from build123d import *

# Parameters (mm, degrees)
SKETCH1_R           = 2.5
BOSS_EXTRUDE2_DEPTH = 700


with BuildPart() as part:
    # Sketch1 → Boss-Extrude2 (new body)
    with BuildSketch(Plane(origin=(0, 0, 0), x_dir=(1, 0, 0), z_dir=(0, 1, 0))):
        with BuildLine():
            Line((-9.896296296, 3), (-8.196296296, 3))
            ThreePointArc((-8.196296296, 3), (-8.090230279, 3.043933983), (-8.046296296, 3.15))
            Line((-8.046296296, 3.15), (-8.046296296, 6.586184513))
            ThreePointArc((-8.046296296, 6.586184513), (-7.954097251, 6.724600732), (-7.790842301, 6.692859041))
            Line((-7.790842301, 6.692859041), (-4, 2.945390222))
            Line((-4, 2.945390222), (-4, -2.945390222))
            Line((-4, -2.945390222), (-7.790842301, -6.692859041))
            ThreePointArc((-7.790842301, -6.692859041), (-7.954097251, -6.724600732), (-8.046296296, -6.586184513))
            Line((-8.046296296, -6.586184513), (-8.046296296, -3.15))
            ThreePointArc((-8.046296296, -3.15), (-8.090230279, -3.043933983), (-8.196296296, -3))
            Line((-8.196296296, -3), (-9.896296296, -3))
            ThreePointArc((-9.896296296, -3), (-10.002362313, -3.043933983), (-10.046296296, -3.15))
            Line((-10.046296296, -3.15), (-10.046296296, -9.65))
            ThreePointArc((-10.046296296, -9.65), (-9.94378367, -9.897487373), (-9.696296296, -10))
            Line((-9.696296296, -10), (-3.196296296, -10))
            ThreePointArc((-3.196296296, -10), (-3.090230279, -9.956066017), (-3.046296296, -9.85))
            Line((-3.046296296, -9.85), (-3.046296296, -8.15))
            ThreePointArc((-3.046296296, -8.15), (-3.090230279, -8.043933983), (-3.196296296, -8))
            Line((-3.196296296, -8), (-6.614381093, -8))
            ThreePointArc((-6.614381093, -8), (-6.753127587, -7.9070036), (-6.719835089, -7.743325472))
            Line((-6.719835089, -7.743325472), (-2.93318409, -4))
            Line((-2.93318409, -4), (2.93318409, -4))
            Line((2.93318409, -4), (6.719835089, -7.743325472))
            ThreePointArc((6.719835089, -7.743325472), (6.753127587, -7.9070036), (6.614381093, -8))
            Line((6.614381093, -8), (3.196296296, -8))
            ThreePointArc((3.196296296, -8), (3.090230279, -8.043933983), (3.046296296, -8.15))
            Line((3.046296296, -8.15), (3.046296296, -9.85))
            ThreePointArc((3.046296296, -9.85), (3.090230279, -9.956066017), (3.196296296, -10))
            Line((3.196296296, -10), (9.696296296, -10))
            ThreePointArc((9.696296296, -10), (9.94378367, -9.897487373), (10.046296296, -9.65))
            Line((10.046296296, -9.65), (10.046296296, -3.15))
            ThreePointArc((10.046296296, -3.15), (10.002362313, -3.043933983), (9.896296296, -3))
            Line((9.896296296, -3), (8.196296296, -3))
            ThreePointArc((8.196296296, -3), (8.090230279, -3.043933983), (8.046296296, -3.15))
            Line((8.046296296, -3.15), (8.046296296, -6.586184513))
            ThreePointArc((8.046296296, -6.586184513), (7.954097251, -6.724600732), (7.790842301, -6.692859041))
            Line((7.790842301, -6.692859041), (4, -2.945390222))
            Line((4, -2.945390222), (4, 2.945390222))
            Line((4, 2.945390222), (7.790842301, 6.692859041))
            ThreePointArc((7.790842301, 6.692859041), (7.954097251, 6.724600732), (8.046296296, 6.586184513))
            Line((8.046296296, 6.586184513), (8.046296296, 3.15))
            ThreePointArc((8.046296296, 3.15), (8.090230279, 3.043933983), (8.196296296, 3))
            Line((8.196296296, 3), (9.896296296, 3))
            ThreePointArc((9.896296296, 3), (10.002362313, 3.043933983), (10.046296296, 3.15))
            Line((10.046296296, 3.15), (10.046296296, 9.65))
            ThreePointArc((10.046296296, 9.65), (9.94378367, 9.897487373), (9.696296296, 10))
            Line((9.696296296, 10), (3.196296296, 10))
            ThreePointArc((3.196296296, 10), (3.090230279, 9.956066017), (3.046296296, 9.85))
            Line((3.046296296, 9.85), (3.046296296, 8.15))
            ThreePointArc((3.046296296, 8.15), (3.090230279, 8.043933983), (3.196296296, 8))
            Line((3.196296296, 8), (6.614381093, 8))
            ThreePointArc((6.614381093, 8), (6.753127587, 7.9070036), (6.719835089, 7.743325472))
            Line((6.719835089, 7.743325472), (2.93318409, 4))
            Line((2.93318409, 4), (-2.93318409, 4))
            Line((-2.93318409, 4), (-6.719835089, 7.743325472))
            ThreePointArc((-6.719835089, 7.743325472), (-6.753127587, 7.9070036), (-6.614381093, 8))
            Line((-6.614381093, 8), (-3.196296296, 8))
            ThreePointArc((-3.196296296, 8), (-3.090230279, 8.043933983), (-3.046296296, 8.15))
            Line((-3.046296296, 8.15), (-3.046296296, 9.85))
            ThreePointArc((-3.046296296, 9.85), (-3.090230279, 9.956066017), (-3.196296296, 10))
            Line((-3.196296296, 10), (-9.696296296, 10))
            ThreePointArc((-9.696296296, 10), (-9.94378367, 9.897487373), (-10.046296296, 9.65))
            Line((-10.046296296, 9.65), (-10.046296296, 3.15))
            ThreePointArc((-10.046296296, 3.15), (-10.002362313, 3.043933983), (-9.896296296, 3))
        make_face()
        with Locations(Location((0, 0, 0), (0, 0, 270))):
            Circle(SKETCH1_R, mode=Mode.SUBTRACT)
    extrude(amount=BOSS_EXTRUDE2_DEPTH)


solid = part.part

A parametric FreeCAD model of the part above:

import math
import FreeCAD as App
import Part
import Sketcher

V = App.Vector
Q = App.Units.Quantity

doc = App.newDocument("Part")
body = doc.addObject("PartDesign::Body", "Body")

# Sketch on XZ plane
sketch1 = doc.addObject("Sketcher::SketchObject", "Sketch")
body.addObject(sketch1)
sketch1.AttachmentSupport = (doc.XZ_Plane, [""])
sketch1.MapMode = "FlatFace"
sketch1.addGeometry([
    Part.LineSegment(V(-9.896296, -3, 0), V(-8.196296, -3, 0)),  # 0
    Part.ArcOfCircle(Part.Circle(V(-8.196296, -3.15, 0), V(0, 0, 1), 0.15), math.radians(0), math.radians(90)),  # 1
    Part.LineSegment(V(-8.046296, -3.15, 0), V(-8.046296, -6.586185, 0)),  # 2
    Part.ArcOfCircle(Part.Circle(V(-7.896296, -6.586185, 0), V(0, 0, 1), 0.15), math.radians(180), math.radians(314.670338)),  # 3
    Part.LineSegment(V(-7.790842, -6.692859, 0), V(-4, -2.94539, 0)),  # 4
    Part.LineSegment(V(-4, -2.94539, 0), V(-4, 2.94539, 0)),  # 5
    Part.LineSegment(V(-4, 2.94539, 0), V(-7.790842, 6.692859, 0)),  # 6
    Part.ArcOfCircle(Part.Circle(V(-7.896296, 6.586185, 0), V(0, 0, 1), 0.15), math.radians(45.329662), math.radians(180)),  # 7
    Part.LineSegment(V(-8.046296, 6.586185, 0), V(-8.046296, 3.15, 0)),  # 8
    Part.ArcOfCircle(Part.Circle(V(-8.196296, 3.15, 0), V(0, 0, 1), 0.15), math.radians(-90), math.radians(0)),  # 9
    Part.LineSegment(V(-8.196296, 3, 0), V(-9.896296, 3, 0)),  # 10
    Part.ArcOfCircle(Part.Circle(V(-9.896296, 3.15, 0), V(0, 0, 1), 0.15), math.radians(-180), math.radians(-90)),  # 11
    Part.LineSegment(V(-10.046296, 3.15, 0), V(-10.046296, 9.65, 0)),  # 12
    Part.ArcOfCircle(Part.Circle(V(-9.696296, 9.65, 0), V(0, 0, 1), 0.35), math.radians(90), math.radians(180)),  # 13
    Part.LineSegment(V(-9.696296, 10, 0), V(-3.196296, 10, 0)),  # 14
    Part.ArcOfCircle(Part.Circle(V(-3.196296, 9.85, 0), V(0, 0, 1), 0.15), math.radians(0), math.radians(90)),  # 15
    Part.LineSegment(V(-3.046296, 9.85, 0), V(-3.046296, 8.15, 0)),  # 16
    Part.ArcOfCircle(Part.Circle(V(-3.196296, 8.15, 0), V(0, 0, 1), 0.15), math.radians(-90), math.radians(0)),  # 17
    Part.LineSegment(V(-3.196296, 8, 0), V(-6.614381, 8, 0)),  # 18
    Part.ArcOfCircle(Part.Circle(V(-6.614381, 7.85, 0), V(0, 0, 1), 0.15), math.radians(90), math.radians(225.329661)),  # 19
    Part.LineSegment(V(-6.719835, 7.743325, 0), V(-2.933184, 4, 0)),  # 20
    Part.LineSegment(V(-2.933184, 4, 0), V(2.933184, 4, 0)),  # 21
    Part.LineSegment(V(2.933184, 4, 0), V(6.719835, 7.743325, 0)),  # 22
    Part.ArcOfCircle(Part.Circle(V(6.614381, 7.85, 0), V(0, 0, 1), 0.15), math.radians(-45.329661), math.radians(90)),  # 23
    Part.LineSegment(V(6.614381, 8, 0), V(3.196296, 8, 0)),  # 24
    Part.ArcOfCircle(Part.Circle(V(3.196296, 8.15, 0), V(0, 0, 1), 0.15), math.radians(-180), math.radians(-90)),  # 25
    Part.LineSegment(V(3.046296, 8.15, 0), V(3.046296, 9.85, 0)),  # 26
    Part.ArcOfCircle(Part.Circle(V(3.196296, 9.85, 0), V(0, 0, 1), 0.15), math.radians(90), math.radians(180)),  # 27
    Part.LineSegment(V(3.196296, 10, 0), V(9.696296, 10, 0)),  # 28
    Part.ArcOfCircle(Part.Circle(V(9.696296, 9.65, 0), V(0, 0, 1), 0.35), math.radians(0), math.radians(90)),  # 29
    Part.LineSegment(V(10.046296, 9.65, 0), V(10.046296, 3.15, 0)),  # 30
    Part.ArcOfCircle(Part.Circle(V(9.896296, 3.15, 0), V(0, 0, 1), 0.15), math.radians(-90), math.radians(0)),  # 31
    Part.LineSegment(V(9.896296, 3, 0), V(8.196296, 3, 0)),  # 32
    Part.ArcOfCircle(Part.Circle(V(8.196296, 3.15, 0), V(0, 0, 1), 0.15), math.radians(-180), math.radians(-90)),  # 33
    Part.LineSegment(V(8.046296, 3.15, 0), V(8.046296, 6.586185, 0)),  # 34
    Part.ArcOfCircle(Part.Circle(V(7.896296, 6.586185, 0), V(0, 0, 1), 0.15), math.radians(0), math.radians(134.670338)),  # 35
    Part.LineSegment(V(7.790842, 6.692859, 0), V(4, 2.94539, 0)),  # 36
    Part.LineSegment(V(4, 2.94539, 0), V(4, -2.94539, 0)),  # 37
    Part.LineSegment(V(4, -2.94539, 0), V(7.790842, -6.692859, 0)),  # 38
    Part.ArcOfCircle(Part.Circle(V(7.896296, -6.586185, 0), V(0, 0, 1), 0.15), math.radians(-134.670338), math.radians(0)),  # 39
    Part.LineSegment(V(8.046296, -6.586185, 0), V(8.046296, -3.15, 0)),  # 40
    Part.ArcOfCircle(Part.Circle(V(8.196296, -3.15, 0), V(0, 0, 1), 0.15), math.radians(90), math.radians(180)),  # 41
    Part.LineSegment(V(8.196296, -3, 0), V(9.896296, -3, 0)),  # 42
    Part.ArcOfCircle(Part.Circle(V(9.896296, -3.15, 0), V(0, 0, 1), 0.15), math.radians(0), math.radians(90)),  # 43
    Part.LineSegment(V(10.046296, -3.15, 0), V(10.046296, -9.65, 0)),  # 44
    Part.ArcOfCircle(Part.Circle(V(9.696296, -9.65, 0), V(0, 0, 1), 0.35), math.radians(-90), math.radians(0)),  # 45
    Part.LineSegment(V(9.696296, -10, 0), V(3.196296, -10, 0)),  # 46
    Part.ArcOfCircle(Part.Circle(V(3.196296, -9.85, 0), V(0, 0, 1), 0.15), math.radians(-180), math.radians(-90)),  # 47
    Part.LineSegment(V(3.046296, -9.85, 0), V(3.046296, -8.15, 0)),  # 48
    Part.ArcOfCircle(Part.Circle(V(3.196296, -8.15, 0), V(0, 0, 1), 0.15), math.radians(90), math.radians(180)),  # 49
    Part.LineSegment(V(3.196296, -8, 0), V(6.614381, -8, 0)),  # 50
    Part.ArcOfCircle(Part.Circle(V(6.614381, -7.85, 0), V(0, 0, 1), 0.15), math.radians(-90), math.radians(45.329661)),  # 51
    Part.LineSegment(V(6.719835, -7.743325, 0), V(2.933184, -4, 0)),  # 52
    Part.LineSegment(V(2.933184, -4, 0), V(-2.933184, -4, 0)),  # 53
    Part.LineSegment(V(-2.933184, -4, 0), V(-6.719835, -7.743325, 0)),  # 54
    Part.ArcOfCircle(Part.Circle(V(-6.614381, -7.85, 0), V(0, 0, 1), 0.15), math.radians(134.670339), math.radians(270)),  # 55
    Part.LineSegment(V(-6.614381, -8, 0), V(-3.196296, -8, 0)),  # 56
    Part.ArcOfCircle(Part.Circle(V(-3.196296, -8.15, 0), V(0, 0, 1), 0.15), math.radians(0), math.radians(90)),  # 57
    Part.LineSegment(V(-3.046296, -8.15, 0), V(-3.046296, -9.85, 0)),  # 58
    Part.ArcOfCircle(Part.Circle(V(-3.196296, -9.85, 0), V(0, 0, 1), 0.15), math.radians(-90), math.radians(0)),  # 59
    Part.LineSegment(V(-3.196296, -10, 0), V(-9.696296, -10, 0)),  # 60
    Part.ArcOfCircle(Part.Circle(V(-9.696296, -9.65, 0), V(0, 0, 1), 0.35), math.radians(180), math.radians(270)),  # 61
    Part.LineSegment(V(-10.046296, -9.65, 0), V(-10.046296, -3.15, 0)),  # 62
    Part.ArcOfCircle(Part.Circle(V(-9.896296, -3.15, 0), V(0, 0, 1), 0.15), math.radians(90), math.radians(180)),  # 63
    Part.Circle(V(0, 0, 0), V(0, 0, 1), 2.5),  # 64
], False)
sketch1.addConstraint([
    Sketcher.Constraint("Tangent", 0, 2, 1, 2),
    Sketcher.Constraint("Tangent", 1, 1, 2, 1),
    Sketcher.Constraint("Tangent", 2, 2, 3, 1),
    Sketcher.Constraint("Tangent", 3, 2, 4, 1),
    Sketcher.Constraint("Coincident", 4, 2, 5, 1),
    Sketcher.Constraint("Coincident", 5, 2, 6, 1),
    Sketcher.Constraint("Tangent", 6, 2, 7, 1),
    Sketcher.Constraint("Tangent", 7, 2, 8, 1),
    Sketcher.Constraint("Tangent", 8, 2, 9, 2),
    Sketcher.Constraint("Tangent", 9, 1, 10, 1),
    Sketcher.Constraint("Tangent", 10, 2, 11, 2),
    Sketcher.Constraint("Tangent", 11, 1, 12, 1),
    Sketcher.Constraint("Tangent", 12, 2, 13, 2),
    Sketcher.Constraint("Tangent", 13, 1, 14, 1),
    Sketcher.Constraint("Tangent", 14, 2, 15, 2),
    Sketcher.Constraint("Tangent", 15, 1, 16, 1),
    Sketcher.Constraint("Tangent", 16, 2, 17, 2),
    Sketcher.Constraint("Tangent", 17, 1, 18, 1),
    Sketcher.Constraint("Tangent", 18, 2, 19, 1),
    Sketcher.Constraint("Tangent", 19, 2, 20, 1),
    Sketcher.Constraint("Coincident", 20, 2, 21, 1),
    Sketcher.Constraint("Coincident", 21, 2, 22, 1),
    Sketcher.Constraint("Tangent", 22, 2, 23, 1),
    Sketcher.Constraint("Tangent", 23, 2, 24, 1),
    Sketcher.Constraint("Tangent", 24, 2, 25, 2),
    Sketcher.Constraint("Tangent", 25, 1, 26, 1),
    Sketcher.Constraint("Tangent", 26, 2, 27, 2),
    Sketcher.Constraint("Tangent", 27, 1, 28, 1),
    Sketcher.Constraint("Tangent", 28, 2, 29, 2),
    Sketcher.Constraint("Tangent", 29, 1, 30, 1),
    Sketcher.Constraint("Tangent", 30, 2, 31, 2),
    Sketcher.Constraint("Tangent", 31, 1, 32, 1),
    Sketcher.Constraint("Tangent", 32, 2, 33, 2),
    Sketcher.Constraint("Tangent", 33, 1, 34, 1),
    Sketcher.Constraint("Tangent", 34, 2, 35, 1),
    Sketcher.Constraint("Tangent", 35, 2, 36, 1),
    Sketcher.Constraint("Coincident", 36, 2, 37, 1),
    Sketcher.Constraint("Coincident", 37, 2, 38, 1),
    Sketcher.Constraint("Tangent", 38, 2, 39, 1),
    Sketcher.Constraint("Tangent", 39, 2, 40, 1),
    Sketcher.Constraint("Tangent", 40, 2, 41, 2),
    Sketcher.Constraint("Tangent", 41, 1, 42, 1),
    Sketcher.Constraint("Tangent", 42, 2, 43, 2),
    Sketcher.Constraint("Tangent", 43, 1, 44, 1),
    Sketcher.Constraint("Tangent", 44, 2, 45, 2),
    Sketcher.Constraint("Tangent", 45, 1, 46, 1),
    Sketcher.Constraint("Tangent", 46, 2, 47, 2),
    Sketcher.Constraint("Tangent", 47, 1, 48, 1),
    Sketcher.Constraint("Tangent", 48, 2, 49, 2),
    Sketcher.Constraint("Tangent", 49, 1, 50, 1),
    Sketcher.Constraint("Tangent", 50, 2, 51, 1),
    Sketcher.Constraint("Tangent", 51, 2, 52, 1),
    Sketcher.Constraint("Coincident", 52, 2, 53, 1),
    Sketcher.Constraint("Coincident", 53, 2, 54, 1),
    Sketcher.Constraint("Tangent", 54, 2, 55, 1),
    Sketcher.Constraint("Tangent", 55, 2, 56, 1),
    Sketcher.Constraint("Tangent", 56, 2, 57, 2),
    Sketcher.Constraint("Tangent", 57, 1, 58, 1),
    Sketcher.Constraint("Tangent", 58, 2, 59, 2),
    Sketcher.Constraint("Tangent", 59, 1, 60, 1),
    Sketcher.Constraint("Tangent", 60, 2, 61, 2),
    Sketcher.Constraint("Tangent", 61, 1, 62, 1),
    Sketcher.Constraint("Tangent", 62, 2, 63, 2),
    Sketcher.Constraint("Tangent", 63, 1, 0, 1),
    Sketcher.Constraint("Horizontal", 0),
    Sketcher.Constraint("Vertical", 2),
    Sketcher.Constraint("Vertical", 5),
    Sketcher.Constraint("Vertical", 8),
    Sketcher.Constraint("Horizontal", 10),
    Sketcher.Constraint("Vertical", 12),
    Sketcher.Constraint("Horizontal", 14),
    Sketcher.Constraint("Vertical", 16),
    Sketcher.Constraint("Horizontal", 18),
    Sketcher.Constraint("Horizontal", 21),
    Sketcher.Constraint("Horizontal", 24),
    Sketcher.Constraint("Vertical", 26),
    Sketcher.Constraint("Horizontal", 28),
    Sketcher.Constraint("Vertical", 30),
    Sketcher.Constraint("Horizontal", 32),
    Sketcher.Constraint("Vertical", 34),
    Sketcher.Constraint("Vertical", 37),
    Sketcher.Constraint("Vertical", 40),
    Sketcher.Constraint("Horizontal", 42),
    Sketcher.Constraint("Vertical", 44),
    Sketcher.Constraint("Horizontal", 46),
    Sketcher.Constraint("Vertical", 48),
    Sketcher.Constraint("Horizontal", 50),
    Sketcher.Constraint("Horizontal", 53),
    Sketcher.Constraint("Horizontal", 56),
    Sketcher.Constraint("Vertical", 58),
    Sketcher.Constraint("Horizontal", 60),
    Sketcher.Constraint("Vertical", 62),
    Sketcher.Constraint("Coincident", 64, 3, -1, 1),
    Sketcher.Constraint("Equal", 1, 3),
    Sketcher.Constraint("Equal", 3, 7),
    Sketcher.Constraint("Equal", 7, 9),
    Sketcher.Constraint("Equal", 9, 11),
    Sketcher.Constraint("Equal", 11, 15),
    Sketcher.Constraint("Equal", 15, 17),
    Sketcher.Constraint("Equal", 17, 19),
    Sketcher.Constraint("Equal", 19, 23),
    Sketcher.Constraint("Equal", 23, 25),
    Sketcher.Constraint("Equal", 25, 27),
    Sketcher.Constraint("Equal", 13, 29),
    Sketcher.Constraint("Equal", 27, 31),
    Sketcher.Constraint("Equal", 31, 33),
    Sketcher.Constraint("Equal", 33, 35),
    Sketcher.Constraint("Equal", 35, 39),
    Sketcher.Constraint("Equal", 39, 41),
    Sketcher.Constraint("Equal", 41, 43),
    Sketcher.Constraint("Equal", 29, 45),
    Sketcher.Constraint("Equal", 43, 47),
    Sketcher.Constraint("Equal", 47, 49),
    Sketcher.Constraint("Equal", 49, 51),
    Sketcher.Constraint("Equal", 51, 55),
    Sketcher.Constraint("Equal", 55, 57),
    Sketcher.Constraint("Equal", 57, 59),
    Sketcher.Constraint("Equal", 45, 61),
    Sketcher.Constraint("Equal", 59, 63),
    Sketcher.Constraint("Symmetric", 1, 3, 33, 3, -1, 1),
    Sketcher.Constraint("Symmetric", 7, 3, 39, 3, -1, 1),
    Sketcher.Constraint("Symmetric", 11, 3, 43, 3, -1, 1),
    Sketcher.Constraint("Symmetric", 15, 3, 47, 3, -1, 1),
    Sketcher.Constraint("Symmetric", 19, 3, 51, 3, -1, 1),
    Sketcher.Constraint("Symmetric", 23, 3, 55, 3, -1, 1),
    Sketcher.Constraint("Symmetric", 27, 3, 59, 3, -1, 1),
    Sketcher.Constraint("Symmetric", 3, 2, 35, 2, -1, 1),
    Sketcher.Constraint("Symmetric", 5, 2, 37, 2, -1, 1),
    Sketcher.Constraint("Symmetric", 20, 2, 52, 2, -1, 1),
    Sketcher.Constraint("Symmetric", 19, 3, 23, 3, -2),
    Sketcher.Constraint("Symmetric", 15, 3, 27, 3, -2),
    Sketcher.Constraint("Symmetric", 11, 3, 31, 3, -2),
    Sketcher.Constraint("Symmetric", 7, 3, 35, 3, -2),
    Sketcher.Constraint("Parallel", 6, 20),
    Sketcher.Constraint("Parallel", 4, 22),
    Sketcher.Constraint("Parallel", 36, 54),
    Sketcher.Constraint("Horizontal", 19, 2, 22, 2),
    Sketcher.Constraint("Vertical", 13, 3, 61, 3),
    Sketcher.Constraint("Equal", 60, 12),
    Sketcher.Constraint("Equal", 42, 16),
    Sketcher.Constraint("Diameter", 64, Q("5 mm")),
    Sketcher.Constraint("Radius", 1, Q("0.15 mm")),
    Sketcher.Constraint("Radius", 13, Q("0.35 mm")),
    Sketcher.Constraint("DistanceX", 0, 1, 0, 2, Q("1.7 mm")),
    Sketcher.Constraint("DistanceX", 14, 1, 14, 2, Q("6.5 mm")),
    Sketcher.Constraint("DistanceY", 0, 2, -1, 1, Q("3 mm")),
    Sketcher.Constraint("DistanceX", 4, 2, -1, 1, Q("4 mm")),
    Sketcher.Constraint("DistanceY", -1, 1, 20, 2, Q("4 mm")),
    Sketcher.Constraint("DistanceX", 21, 1, 21, 2, Q("5.866368 mm")),
    Sketcher.Constraint("DistanceY", 5, 1, 5, 2, Q("5.89078 mm")),
    Sketcher.Constraint("Distance", 4, Q("5.330479 mm")),
    Sketcher.Constraint("DistanceX", 18, 2, 18, 1, Q("3.418085 mm")),
])
pad1 = doc.addObject("PartDesign::Pad", "Pad")
body.addObject(pad1)
pad1.Profile = sketch1
pad1.Length = 700
pad1.Reversed = True

doc.recompute()
